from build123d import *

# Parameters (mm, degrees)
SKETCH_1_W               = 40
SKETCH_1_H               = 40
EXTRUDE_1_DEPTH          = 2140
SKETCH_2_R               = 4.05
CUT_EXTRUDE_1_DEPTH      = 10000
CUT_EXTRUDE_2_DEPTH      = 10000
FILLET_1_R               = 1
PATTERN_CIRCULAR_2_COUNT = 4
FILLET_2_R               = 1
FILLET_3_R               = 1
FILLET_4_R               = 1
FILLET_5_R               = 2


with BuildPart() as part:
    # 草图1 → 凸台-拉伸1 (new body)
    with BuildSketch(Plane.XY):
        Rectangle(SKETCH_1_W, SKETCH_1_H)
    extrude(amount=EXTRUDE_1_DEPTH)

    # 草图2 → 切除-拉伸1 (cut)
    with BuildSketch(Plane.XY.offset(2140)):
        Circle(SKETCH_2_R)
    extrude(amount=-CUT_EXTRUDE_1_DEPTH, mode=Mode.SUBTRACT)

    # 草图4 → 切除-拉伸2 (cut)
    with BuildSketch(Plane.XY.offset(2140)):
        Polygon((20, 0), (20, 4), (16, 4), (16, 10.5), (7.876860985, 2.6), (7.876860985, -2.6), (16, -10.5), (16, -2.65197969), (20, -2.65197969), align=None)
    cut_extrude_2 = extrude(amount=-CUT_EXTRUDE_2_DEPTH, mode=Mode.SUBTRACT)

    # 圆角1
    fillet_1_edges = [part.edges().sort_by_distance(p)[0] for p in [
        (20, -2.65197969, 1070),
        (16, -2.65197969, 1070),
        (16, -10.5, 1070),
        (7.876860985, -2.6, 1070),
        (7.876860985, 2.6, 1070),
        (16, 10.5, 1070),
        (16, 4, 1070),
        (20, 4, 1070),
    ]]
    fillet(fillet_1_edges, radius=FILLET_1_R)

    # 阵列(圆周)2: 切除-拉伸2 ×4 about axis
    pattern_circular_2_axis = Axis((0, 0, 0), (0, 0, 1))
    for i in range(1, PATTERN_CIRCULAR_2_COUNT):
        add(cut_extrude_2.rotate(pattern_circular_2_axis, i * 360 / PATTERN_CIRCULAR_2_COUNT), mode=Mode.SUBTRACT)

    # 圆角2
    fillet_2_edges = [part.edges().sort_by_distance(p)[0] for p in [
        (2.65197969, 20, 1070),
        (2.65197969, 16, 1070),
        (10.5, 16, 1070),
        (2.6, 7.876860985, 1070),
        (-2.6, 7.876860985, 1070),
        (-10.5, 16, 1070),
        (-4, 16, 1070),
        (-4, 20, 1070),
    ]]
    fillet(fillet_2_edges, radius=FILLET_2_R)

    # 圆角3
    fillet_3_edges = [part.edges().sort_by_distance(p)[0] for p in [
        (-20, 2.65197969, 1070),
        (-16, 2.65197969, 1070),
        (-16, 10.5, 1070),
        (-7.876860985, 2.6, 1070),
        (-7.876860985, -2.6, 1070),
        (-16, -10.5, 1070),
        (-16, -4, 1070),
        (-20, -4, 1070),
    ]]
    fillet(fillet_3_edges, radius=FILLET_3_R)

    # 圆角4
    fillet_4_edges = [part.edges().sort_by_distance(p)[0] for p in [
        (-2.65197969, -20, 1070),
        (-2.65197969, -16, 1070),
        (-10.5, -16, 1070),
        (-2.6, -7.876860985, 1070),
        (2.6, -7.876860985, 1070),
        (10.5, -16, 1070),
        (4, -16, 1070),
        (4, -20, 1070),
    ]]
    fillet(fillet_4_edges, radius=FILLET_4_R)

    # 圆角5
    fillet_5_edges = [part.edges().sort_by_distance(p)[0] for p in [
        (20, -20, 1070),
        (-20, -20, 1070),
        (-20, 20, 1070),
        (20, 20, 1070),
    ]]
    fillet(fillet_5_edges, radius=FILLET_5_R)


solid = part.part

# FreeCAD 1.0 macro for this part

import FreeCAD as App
import Part
import Sketcher

V = App.Vector


def edges_at(feature, points):
    """Names of the edges that pass closest to the given points."""
    edges = feature.Shape.Edges
    near = lambda p: min(range(len(edges)), key=lambda i: edges[i].distToShape(Part.Vertex(*p))[0])
    return sorted({f"Edge{near(p) + 1}" for p in points})

doc = App.newDocument("Part")
body = doc.addObject("PartDesign::Body", "Body")

sketch1 = body.newObject("Sketcher::SketchObject", "Sketch")
sketch1.AttachmentSupport = (doc.getObject("XY_Plane"), [""])
sketch1.MapMode = "FlatFace"
sketch1.addGeometry(Part.LineSegment(V(-20, 20, 0), V(-20, -20, 0)), False)
sketch1.addGeometry(Part.LineSegment(V(-20, -20, 0), V(20, -20, 0)), False)
sketch1.addGeometry(Part.LineSegment(V(20, -20, 0), V(20, 20, 0)), False)
sketch1.addGeometry(Part.LineSegment(V(20, 20, 0), V(-20, 20, 0)), False)
sketch1.addConstraint(Sketcher.Constraint("Coincident", 0, 2, 1, 1))
sketch1.addConstraint(Sketcher.Constraint("Coincident", 1, 2, 2, 1))
sketch1.addConstraint(Sketcher.Constraint("Coincident", 2, 2, 3, 1))
sketch1.addConstraint(Sketcher.Constraint("Coincident", 3, 2, 0, 1))
sketch1.addConstraint(Sketcher.Constraint("Vertical", 0))
sketch1.addConstraint(Sketcher.Constraint("Horizontal", 1))
sketch1.addConstraint(Sketcher.Constraint("Vertical", 2))
sketch1.addConstraint(Sketcher.Constraint("Horizontal", 3))
sketch1.addConstraint(Sketcher.Constraint("Symmetric", 0, 2, 2, 2, -1, 1))
sketch1.addConstraint(Sketcher.Constraint("Equal", 3, 0))
sketch1.addConstraint(Sketcher.Constraint("DistanceX", 1, 1, 1, 2, 40.0))
pad1 = body.newObject("PartDesign::Pad", "Pad")
pad1.Profile = sketch1
pad1.Length = 2140

sketch2 = body.newObject("Sketcher::SketchObject", "Sketch001")
sketch2.AttachmentSupport = (doc.getObject("XY_Plane"), [""])
sketch2.MapMode = "FlatFace"
sketch2.AttachmentOffset = App.Placement(V(0, 0, 2140), App.Rotation())
sketch2.addGeometry(Part.Circle(V(0, 0, 0), V(0, 0, 1), 4.05), False)
sketch2.addConstraint(Sketcher.Constraint("Coincident", 0, 3, -1, 1))
sketch2.addConstraint(Sketcher.Constraint("Diameter", 0, 8.1))
pocket1 = body.newObject("PartDesign::Pocket", "Pocket")
pocket1.Profile = sketch2
pocket1.Length = 10000

sketch3 = body.newObject("Sketcher::SketchObject", "Sketch002")
sketch3.AttachmentSupport = (doc.getObject("XY_Plane"), [""])
sketch3.MapMode = "FlatFace"
sketch3.AttachmentOffset = App.Placement(V(0, 0, 2140), App.Rotation())
sketch3.addGeometry(Part.LineSegment(V(20, 4, 0), V(16, 4, 0)), False)
sketch3.addGeometry(Part.LineSegment(V(16, 4, 0), V(16, 10.5, 0)), False)
sketch3.addGeometry(Part.LineSegment(V(16, 10.5, 0), V(7.876861, 2.6, 0)), False)
sketch3.addGeometry(Part.LineSegment(V(7.876861, 2.6, 0), V(7.876861, -2.6, 0)), False)
sketch3.addGeometry(Part.LineSegment(V(7.876861, -2.6, 0), V(16, -10.5, 0)), False)
sketch3.addGeometry(Part.LineSegment(V(16, -10.5, 0), V(16, -2.65198, 0)), False)
sketch3.addGeometry(Part.LineSegment(V(16, -2.65198, 0), V(20, -2.65198, 0)), False)
sketch3.addGeometry(Part.LineSegment(V(20, -2.65198, 0), V(20, 4, 0)), False)
sketch3.addConstraint(Sketcher.Constraint("Coincident", 0, 2, 1, 1))
sketch3.addConstraint(Sketcher.Constraint("Coincident", 1, 2, 2, 1))
sketch3.addConstraint(Sketcher.Constraint("Coincident", 2, 2, 3, 1))
sketch3.addConstraint(Sketcher.Constraint("Coincident", 3, 2, 4, 1))
sketch3.addConstraint(Sketcher.Constraint("Coincident", 4, 2, 5, 1))
sketch3.addConstraint(Sketcher.Constraint("Coincident", 5, 2, 6, 1))
sketch3.addConstraint(Sketcher.Constraint("Coincident", 6, 2, 7, 1))
sketch3.addConstraint(Sketcher.Constraint("Coincident", 7, 2, 0, 1))
sketch3.addConstraint(Sketcher.Constraint("Horizontal", 0))
sketch3.addConstraint(Sketcher.Constraint("Vertical", 1))
sketch3.addConstraint(Sketcher.Constraint("Vertical", 3))
sketch3.addConstraint(Sketcher.Constraint("Vertical", 5))
sketch3.addConstraint(Sketcher.Constraint("Horizontal", 6))
sketch3.addConstraint(Sketcher.Constraint("Vertical", 7))
sketch3.addConstraint(Sketcher.Constraint("Symmetric", 1, 2, 4, 2, -1))
sketch3.addConstraint(Sketcher.Constraint("Equal", 2, 4))
sketch3.addConstraint(Sketcher.Constraint("DistanceX", 0, 2, 0, 1, 4.0))
sketch3.addConstraint(Sketcher.Constraint("DistanceY", 1, 1, 1, 2, 6.5))
sketch3.addConstraint(Sketcher.Constraint("DistanceY", 3, 2, 3, 1, 5.2))
sketch3.addConstraint(Sketcher.Constraint("DistanceX", -1, 1, 0, 2, 16.0))
sketch3.addConstraint(Sketcher.Constraint("DistanceY", -1, 1, 0, 2, 4.0))
sketch3.addConstraint(Sketcher.Constraint("DistanceY", 5, 1, 5, 2, 7.84802))
sketch3.addConstraint(Sketcher.Constraint("Distance", 2, 11.331169))
pocket2 = body.newObject("PartDesign::Pocket", "Pocket001")
pocket2.Profile = sketch3
pocket2.Length = 10000
doc.recompute()

fillet = body.newObject("PartDesign::Fillet", "Fillet")
fillet.Base = (pocket2, edges_at(pocket2, [
    (20, -2.652, 1070),
    (16, -2.652, 1070),
    (16, -10.5, 1070),
    (7.877, -2.6, 1070),
    (7.877, 2.6, 1070),
    (16, 10.5, 1070),
    (16, 4, 1070),
    (20, 4, 1070),
]))
fillet.Radius = 1
doc.recompute()

polarpattern = body.newObject("PartDesign::PolarPattern", "PolarPattern")
polarpattern.Originals = [pocket2]
polarpattern.Axis = (doc.getObject("Z_Axis"), [""])
polarpattern.Angle = 360
polarpattern.Occurrences = 4
body.Tip = polarpattern
doc.recompute()

fillet2 = body.newObject("PartDesign::Fillet", "Fillet001")
fillet2.Base = (polarpattern, edges_at(polarpattern, [
    (2.652, 20, 1070),
    (2.652, 16, 1070),
    (10.5, 16, 1070),
    (2.6, 7.877, 1070),
    (-2.6, 7.877, 1070),
    (-10.5, 16, 1070),
    (-4, 16, 1070),
    (-4, 20, 1070),
]))
fillet2.Radius = 1
doc.recompute()

fillet3 = body.newObject("PartDesign::Fillet", "Fillet002")
fillet3.Base = (fillet2, edges_at(fillet2, [
    (-20, 2.652, 1070),
    (-16, 2.652, 1070),
    (-16, 10.5, 1070),
    (-7.877, 2.6, 1070),
    (-7.877, -2.6, 1070),
    (-16, -10.5, 1070),
    (-16, -4, 1070),
    (-20, -4, 1070),
]))
fillet3.Radius = 1
doc.recompute()

fillet4 = body.newObject("PartDesign::Fillet", "Fillet003")
fillet4.Base = (fillet3, edges_at(fillet3, [
    (-2.652, -20, 1070),
    (-2.652, -16, 1070),
    (-10.5, -16, 1070),
    (-2.6, -7.877, 1070),
    (2.6, -7.877, 1070),
    (10.5, -16, 1070),
    (4, -16, 1070),
    (4, -20, 1070),
]))
fillet4.Radius = 1
doc.recompute()

fillet5 = body.newObject("PartDesign::Fillet", "Fillet004")
fillet5.Base = (fillet4, edges_at(fillet4, [
    (20, -20, 1070),
    (-20, -20, 1070),
    (-20, 20, 1070),
    (20, 20, 1070),
]))
fillet5.Radius = 2

doc.recompute()
